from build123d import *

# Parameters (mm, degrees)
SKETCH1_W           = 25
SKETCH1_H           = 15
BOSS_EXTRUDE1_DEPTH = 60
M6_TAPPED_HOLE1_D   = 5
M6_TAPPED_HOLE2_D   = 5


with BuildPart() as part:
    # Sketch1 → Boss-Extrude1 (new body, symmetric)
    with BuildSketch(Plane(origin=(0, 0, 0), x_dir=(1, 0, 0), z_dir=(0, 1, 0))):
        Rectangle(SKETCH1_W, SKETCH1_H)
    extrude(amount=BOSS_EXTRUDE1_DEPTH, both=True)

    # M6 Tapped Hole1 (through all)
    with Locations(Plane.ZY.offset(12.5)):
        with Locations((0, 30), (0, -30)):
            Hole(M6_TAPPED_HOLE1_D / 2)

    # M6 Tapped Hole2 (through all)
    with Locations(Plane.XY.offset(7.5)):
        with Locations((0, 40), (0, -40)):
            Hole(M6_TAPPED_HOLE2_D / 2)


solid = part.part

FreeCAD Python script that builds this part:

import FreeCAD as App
import Part
import Sketcher
from FreeCAD import Vector
Q = App.Units.Quantity

doc = App.newDocument("Part")
body = doc.addObject("PartDesign::Body", "Body")

# Sketch on XZ plane
sketch1 = body.newObject("Sketcher::SketchObject", "Sketch")
sketch1.AttachmentSupport = (doc.getObject("XZ_Plane"), [""])
sketch1.MapMode = "FlatFace"
sketch1.addGeometry(Part.LineSegment(Vector(-12, -8, 0), Vector(-12, 8, 0)), False)
sketch1.addGeometry(Part.LineSegment(Vector(-12, 8, 0), Vector(12, 8, 0)), False)
sketch1.addGeometry(Part.LineSegment(Vector(12, 8, 0), Vector(12, -8, 0)), False)
sketch1.addGeometry(Part.LineSegment(Vector(12, -8, 0), Vector(-12, -8, 0)), False)
sketch1.addConstraint(Sketcher.Constraint("Coincident", 0, 2, 1, 1))
sketch1.addConstraint(Sketcher.Constraint("Coincident", 1, 2, 2, 1))
sketch1.addConstraint(Sketcher.Constraint("Coincident", 2, 2, 3, 1))
sketch1.addConstraint(Sketcher.Constraint("Coincident", 3, 2, 0, 1))
sketch1.addConstraint(Sketcher.Constraint("Vertical", 0))
sketch1.addConstraint(Sketcher.Constraint("Horizontal", 1))
sketch1.addConstraint(Sketcher.Constraint("Vertical", 2))
sketch1.addConstraint(Sketcher.Constraint("Horizontal", 3))
sketch1.addConstraint(Sketcher.Constraint("Symmetric", 0, 2, 2, 2, -1, 1))
sketch1.addConstraint(Sketcher.Constraint("DistanceX", 1, 1, 1, 2, Q("25 mm")))
sketch1.addConstraint(Sketcher.Constraint("DistanceY", 0, 1, 0, 2, Q("15 mm")))
pad1 = body.newObject("PartDesign::Pad", "Pad")
pad1.Profile = sketch1
pad1.Length = 120
pad1.Midplane = True

# Sketch on YZ plane
sketch2 = body.newObject("Sketcher::SketchObject", "Sketch001")
sketch2.AttachmentSupport = (doc.getObject("YZ_Plane"), [""])
sketch2.MapMode = "FlatFace"
sketch2.AttachmentOffset = App.Placement(Vector(0, 0, -12.5), App.Rotation())
sketch2.addGeometry(Part.Circle(Vector(30, 0, 0), Vector(0, 0, 1), 2.5), False)
sketch2.addGeometry(Part.Circle(Vector(-30, 0, 0), Vector(0, 0, 1), 2.5), False)
sketch2.addConstraint(Sketcher.Constraint("Equal", 0, 1))
sketch2.addConstraint(Sketcher.Constraint("Symmetric", 0, 3, 1, 3, -1, 1))
sketch2.addConstraint(Sketcher.Constraint("PointOnObject", 0, 3, -1))
sketch2.addConstraint(Sketcher.Constraint("Diameter", 0, Q("5 mm")))
sketch2.addConstraint(Sketcher.Constraint("DistanceX", -1, 1, 0, 3, Q("30 mm")))
doc.recompute()
hole = body.newObject("PartDesign::Hole", "Hole")
hole.Profile = sketch2
hole.ThreadType = "None"
hole.Diameter = 5
hole.DepthType = "ThroughAll"
hole.Reversed = True

# Sketch on XY plane
sketch3 = body.newObject("Sketcher::SketchObject", "Sketch002")
sketch3.AttachmentSupport = (doc.getObject("XY_Plane"), [""])
sketch3.MapMode = "FlatFace"
sketch3.AttachmentOffset = App.Placement(Vector(0, 0, 7.5), App.Rotation())
sketch3.addGeometry(Part.Circle(Vector(0, 40, 0), Vector(0, 0, 1), 2.5), False)
sketch3.addGeometry(Part.Circle(Vector(0, -40, 0), Vector(0, 0, 1), 2.5), False)
sketch3.addConstraint(Sketcher.Constraint("Equal", 0, 1))
sketch3.addConstraint(Sketcher.Constraint("Symmetric", 0, 3, 1, 3, -1, 1))
sketch3.addConstraint(Sketcher.Constraint("PointOnObject", 0, 3, -2))
sketch3.addConstraint(Sketcher.Constraint("Diameter", 0, Q("5 mm")))
sketch3.addConstraint(Sketcher.Constraint("DistanceY", -1, 1, 0, 3, Q("40 mm")))
doc.recompute()
hole2 = body.newObject("PartDesign::Hole", "Hole001")
hole2.Profile = sketch3
hole2.ThreadType = "None"
hole2.Diameter = 5
hole2.DepthType = "ThroughAll"

doc.recompute()
